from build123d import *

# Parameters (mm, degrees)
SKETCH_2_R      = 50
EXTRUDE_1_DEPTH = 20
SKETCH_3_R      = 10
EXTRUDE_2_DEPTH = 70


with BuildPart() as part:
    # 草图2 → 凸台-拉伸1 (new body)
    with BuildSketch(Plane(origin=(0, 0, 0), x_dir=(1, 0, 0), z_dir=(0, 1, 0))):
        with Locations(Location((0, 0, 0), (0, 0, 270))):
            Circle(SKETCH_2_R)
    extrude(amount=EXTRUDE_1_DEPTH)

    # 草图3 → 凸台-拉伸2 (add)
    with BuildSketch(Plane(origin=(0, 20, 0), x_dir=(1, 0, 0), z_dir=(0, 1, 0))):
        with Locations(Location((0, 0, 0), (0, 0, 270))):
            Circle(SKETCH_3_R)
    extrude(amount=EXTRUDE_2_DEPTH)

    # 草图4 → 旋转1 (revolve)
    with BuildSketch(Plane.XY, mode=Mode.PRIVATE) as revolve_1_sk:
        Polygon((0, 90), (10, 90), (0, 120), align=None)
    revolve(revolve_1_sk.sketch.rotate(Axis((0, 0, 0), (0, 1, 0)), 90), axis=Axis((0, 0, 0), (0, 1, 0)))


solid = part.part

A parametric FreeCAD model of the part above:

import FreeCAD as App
import Part
import Sketcher
from FreeCAD import Vector
Q = App.Units.Quantity


def add_polygon(sketch, points):
    """Adds a closed chain of lines whose ends are joined by coincident constraints."""
    first, n = sketch.GeometryCount, len(points)
    for a, b in zip(points, points[1:] + points[:1]):
        sketch.addGeometry(Part.LineSegment(App.Vector(*a, 0), App.Vector(*b, 0)), False)
    for i in range(n):
        sketch.addConstraint(Sketcher.Constraint("Coincident", first + i, 2, first + (i + 1) % n, 1))

doc = App.newDocument("Part")
body = doc.addObject("PartDesign::Body", "Body")

# Sketch on XZ plane
sketch1 = body.newObject("Sketcher::SketchObject", "Sketch")
sketch1.AttachmentSupport = (doc.getObject("XZ_Plane"), [""])
sketch1.MapMode = "FlatFace"
sketch1.addGeometry(Part.Circle(Vector(0, 0, 0), Vector(0, 0, 1), 50), False)
sketch1.addConstraint([
    Sketcher.Constraint("Coincident", 0, 3, -1, 1),
    Sketcher.Constraint("Diameter", 0, Q("100 mm")),
])
pad1 = body.newObject("PartDesign::Pad", "Pad")
pad1.Profile = sketch1
pad1.Length = 20
pad1.Reversed = True

# Sketch on XZ plane
sketch2 = body.newObject("Sketcher::SketchObject", "Sketch001")
sketch2.AttachmentSupport = (doc.getObject("XZ_Plane"), [""])
sketch2.MapMode = "FlatFace"
sketch2.AttachmentOffset = App.Placement(Vector(0, 0, -20), App.Rotation())
sketch2.addGeometry(Part.Circle(Vector(0, 0, 0), Vector(0, 0, 1), 10), False)
sketch2.addConstraint([
    Sketcher.Constraint("Coincident", 0, 3, -1, 1),
    Sketcher.Constraint("Diameter", 0, Q("20 mm")),
])
pad2 = body.newObject("PartDesign::Pad", "Pad001")
pad2.Profile = sketch2
pad2.Length = 70
pad2.Reversed = True

# Sketch on XY plane
sketch3 = body.newObject("Sketcher::SketchObject", "Sketch002")
sketch3.AttachmentSupport = (doc.getObject("XY_Plane"), [""])
sketch3.MapMode = "FlatFace"
add_polygon(sketch3, [(0, 90), (10, 90), (0, 120)])  # lines 0-2
sketch3.addConstraint([
    Sketcher.Constraint("Horizontal", 0),
    Sketcher.Constraint("Vertical", 2),
    Sketcher.Constraint("PointOnObject", 1, 2, -2),
    Sketcher.Constraint("DistanceX", 0, 1, 0, 2, Q("10 mm")),
    Sketcher.Constraint("DistanceY", 2, 2, 2, 1, Q("30 mm")),
    Sketcher.Constraint("DistanceY", -1, 1, 0, 2, Q("90 mm")),
])
revolution = body.newObject("PartDesign::Revolution", "Revolution")
revolution.Profile = sketch3
revolution.ReferenceAxis = (sketch3, ["V_Axis"])
revolution.Angle = 360

doc.recompute()
